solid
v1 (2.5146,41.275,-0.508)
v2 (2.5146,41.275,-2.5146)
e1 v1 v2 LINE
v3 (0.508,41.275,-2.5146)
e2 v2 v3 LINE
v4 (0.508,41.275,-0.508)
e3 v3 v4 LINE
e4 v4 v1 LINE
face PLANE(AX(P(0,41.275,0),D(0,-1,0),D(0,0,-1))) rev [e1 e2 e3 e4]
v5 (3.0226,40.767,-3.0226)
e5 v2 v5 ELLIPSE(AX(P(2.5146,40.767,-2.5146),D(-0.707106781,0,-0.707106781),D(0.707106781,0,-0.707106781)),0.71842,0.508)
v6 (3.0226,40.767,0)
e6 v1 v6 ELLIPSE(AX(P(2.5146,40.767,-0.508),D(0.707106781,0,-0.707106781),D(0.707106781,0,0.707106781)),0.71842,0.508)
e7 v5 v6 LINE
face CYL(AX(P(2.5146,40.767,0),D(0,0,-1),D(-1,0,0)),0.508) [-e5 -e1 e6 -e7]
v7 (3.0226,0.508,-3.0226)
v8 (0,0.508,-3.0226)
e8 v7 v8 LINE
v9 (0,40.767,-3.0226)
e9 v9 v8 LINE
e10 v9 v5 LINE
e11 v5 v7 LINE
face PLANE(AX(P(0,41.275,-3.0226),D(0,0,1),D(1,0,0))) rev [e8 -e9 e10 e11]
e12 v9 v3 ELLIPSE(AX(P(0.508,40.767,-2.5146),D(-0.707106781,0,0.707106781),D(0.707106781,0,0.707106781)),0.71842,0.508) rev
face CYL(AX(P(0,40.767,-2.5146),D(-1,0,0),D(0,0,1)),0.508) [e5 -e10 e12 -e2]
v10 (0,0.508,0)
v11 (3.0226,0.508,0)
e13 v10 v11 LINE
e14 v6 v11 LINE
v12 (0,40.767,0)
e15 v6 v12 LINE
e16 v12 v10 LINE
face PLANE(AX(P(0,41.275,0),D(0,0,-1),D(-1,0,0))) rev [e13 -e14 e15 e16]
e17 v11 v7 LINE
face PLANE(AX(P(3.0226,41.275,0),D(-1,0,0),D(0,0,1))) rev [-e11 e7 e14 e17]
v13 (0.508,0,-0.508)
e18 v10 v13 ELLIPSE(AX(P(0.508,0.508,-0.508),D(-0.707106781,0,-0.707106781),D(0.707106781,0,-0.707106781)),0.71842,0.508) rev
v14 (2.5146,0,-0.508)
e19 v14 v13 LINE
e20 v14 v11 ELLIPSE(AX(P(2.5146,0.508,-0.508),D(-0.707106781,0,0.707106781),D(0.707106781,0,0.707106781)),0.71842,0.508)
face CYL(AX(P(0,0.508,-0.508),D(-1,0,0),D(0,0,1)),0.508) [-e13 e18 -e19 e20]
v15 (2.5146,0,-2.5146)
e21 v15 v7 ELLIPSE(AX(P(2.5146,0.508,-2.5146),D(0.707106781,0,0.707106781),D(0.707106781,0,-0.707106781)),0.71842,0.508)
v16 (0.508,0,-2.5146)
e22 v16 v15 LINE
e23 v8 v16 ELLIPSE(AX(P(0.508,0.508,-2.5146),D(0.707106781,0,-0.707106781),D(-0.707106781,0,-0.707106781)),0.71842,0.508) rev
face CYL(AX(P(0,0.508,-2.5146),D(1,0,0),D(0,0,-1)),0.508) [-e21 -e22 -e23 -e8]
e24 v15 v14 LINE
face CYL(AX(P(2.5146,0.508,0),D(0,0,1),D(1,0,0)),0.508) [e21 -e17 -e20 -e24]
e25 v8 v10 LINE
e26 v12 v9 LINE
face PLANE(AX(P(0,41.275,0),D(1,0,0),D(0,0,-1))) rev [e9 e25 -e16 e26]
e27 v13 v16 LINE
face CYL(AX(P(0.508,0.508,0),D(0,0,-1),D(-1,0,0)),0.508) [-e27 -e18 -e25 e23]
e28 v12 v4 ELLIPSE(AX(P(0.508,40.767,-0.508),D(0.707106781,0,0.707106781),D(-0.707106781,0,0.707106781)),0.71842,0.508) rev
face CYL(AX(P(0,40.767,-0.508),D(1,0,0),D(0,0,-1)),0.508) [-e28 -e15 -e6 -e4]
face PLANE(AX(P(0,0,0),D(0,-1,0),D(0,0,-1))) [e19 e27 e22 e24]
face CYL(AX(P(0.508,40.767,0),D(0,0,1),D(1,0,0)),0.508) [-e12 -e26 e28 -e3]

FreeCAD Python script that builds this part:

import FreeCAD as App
import Part
import Sketcher

V = App.Vector
Q = App.Units.Quantity


def edges_at(feature, points):
    """Names of the edges that pass closest to the given points."""
    edges = feature.Shape.Edges
    near = lambda p: min(range(len(edges)), key=lambda i: edges[i].distToShape(Part.Vertex(*p))[0])
    return sorted({f"Edge{near(p) + 1}" for p in points})

doc = App.newDocument("Part")
body = doc.addObject("PartDesign::Body", "Body")

# Sketch on XZ plane
sketch1 = body.newObject("Sketcher::SketchObject", "Sketch")
sketch1.AttachmentSupport = (doc.getObject("XZ_Plane"), [""])
sketch1.MapMode = "FlatFace"
sketch1.addGeometry(Part.LineSegment(V(0, -3, 0), V(0, 0, 0)), False)
sketch1.addGeometry(Part.LineSegment(V(0, 0, 0), V(3, 0, 0)), False)
sketch1.addGeometry(Part.LineSegment(V(3, 0, 0), V(3, -3, 0)), False)
sketch1.addGeometry(Part.LineSegment(V(3, -3, 0), V(0, -3, 0)), False)
sketch1.addConstraint(Sketcher.Constraint("Coincident", 0, 2, 1, 1))
sketch1.addConstraint(Sketcher.Constraint("Coincident", 1, 2, 2, 1))
sketch1.addConstraint(Sketcher.Constraint("Coincident", 2, 2, 3, 1))
sketch1.addConstraint(Sketcher.Constraint("Coincident", 3, 2, 0, 1))
sketch1.addConstraint(Sketcher.Constraint("Vertical", 0))
sketch1.addConstraint(Sketcher.Constraint("Horizontal", 1))
sketch1.addConstraint(Sketcher.Constraint("Vertical", 2))
sketch1.addConstraint(Sketcher.Constraint("Horizontal", 3))
sketch1.addConstraint(Sketcher.Constraint("Coincident", 0, 2, -1, 1))
sketch1.addConstraint(Sketcher.Constraint("Equal", 3, 0))
sketch1.addConstraint(Sketcher.Constraint("DistanceX", 1, 1, 1, 2, Q("0.119 in")))
pad1 = body.newObject("PartDesign::Pad", "Pad")
pad1.Profile = sketch1
pad1.Length = Q("1.625 in")
pad1.Reversed = True
doc.recompute()

fillet = body.newObject("PartDesign::Fillet", "Fillet")
fillet.Base = (pad1, edges_at(pad1, [
    (3.023, 41.275, -1.511),
    (1.511, 41.275, -3.023),
    (0, 41.275, -1.511),
    (1.511, 0, -3.023),
    (3.023, 0, -1.511),
    (1.511, 0, 0),
    (0, 0, -1.511),
    (1.511, 41.275, 0),
]))
fillet.Radius = Q("0.02 in")

doc.recompute()
